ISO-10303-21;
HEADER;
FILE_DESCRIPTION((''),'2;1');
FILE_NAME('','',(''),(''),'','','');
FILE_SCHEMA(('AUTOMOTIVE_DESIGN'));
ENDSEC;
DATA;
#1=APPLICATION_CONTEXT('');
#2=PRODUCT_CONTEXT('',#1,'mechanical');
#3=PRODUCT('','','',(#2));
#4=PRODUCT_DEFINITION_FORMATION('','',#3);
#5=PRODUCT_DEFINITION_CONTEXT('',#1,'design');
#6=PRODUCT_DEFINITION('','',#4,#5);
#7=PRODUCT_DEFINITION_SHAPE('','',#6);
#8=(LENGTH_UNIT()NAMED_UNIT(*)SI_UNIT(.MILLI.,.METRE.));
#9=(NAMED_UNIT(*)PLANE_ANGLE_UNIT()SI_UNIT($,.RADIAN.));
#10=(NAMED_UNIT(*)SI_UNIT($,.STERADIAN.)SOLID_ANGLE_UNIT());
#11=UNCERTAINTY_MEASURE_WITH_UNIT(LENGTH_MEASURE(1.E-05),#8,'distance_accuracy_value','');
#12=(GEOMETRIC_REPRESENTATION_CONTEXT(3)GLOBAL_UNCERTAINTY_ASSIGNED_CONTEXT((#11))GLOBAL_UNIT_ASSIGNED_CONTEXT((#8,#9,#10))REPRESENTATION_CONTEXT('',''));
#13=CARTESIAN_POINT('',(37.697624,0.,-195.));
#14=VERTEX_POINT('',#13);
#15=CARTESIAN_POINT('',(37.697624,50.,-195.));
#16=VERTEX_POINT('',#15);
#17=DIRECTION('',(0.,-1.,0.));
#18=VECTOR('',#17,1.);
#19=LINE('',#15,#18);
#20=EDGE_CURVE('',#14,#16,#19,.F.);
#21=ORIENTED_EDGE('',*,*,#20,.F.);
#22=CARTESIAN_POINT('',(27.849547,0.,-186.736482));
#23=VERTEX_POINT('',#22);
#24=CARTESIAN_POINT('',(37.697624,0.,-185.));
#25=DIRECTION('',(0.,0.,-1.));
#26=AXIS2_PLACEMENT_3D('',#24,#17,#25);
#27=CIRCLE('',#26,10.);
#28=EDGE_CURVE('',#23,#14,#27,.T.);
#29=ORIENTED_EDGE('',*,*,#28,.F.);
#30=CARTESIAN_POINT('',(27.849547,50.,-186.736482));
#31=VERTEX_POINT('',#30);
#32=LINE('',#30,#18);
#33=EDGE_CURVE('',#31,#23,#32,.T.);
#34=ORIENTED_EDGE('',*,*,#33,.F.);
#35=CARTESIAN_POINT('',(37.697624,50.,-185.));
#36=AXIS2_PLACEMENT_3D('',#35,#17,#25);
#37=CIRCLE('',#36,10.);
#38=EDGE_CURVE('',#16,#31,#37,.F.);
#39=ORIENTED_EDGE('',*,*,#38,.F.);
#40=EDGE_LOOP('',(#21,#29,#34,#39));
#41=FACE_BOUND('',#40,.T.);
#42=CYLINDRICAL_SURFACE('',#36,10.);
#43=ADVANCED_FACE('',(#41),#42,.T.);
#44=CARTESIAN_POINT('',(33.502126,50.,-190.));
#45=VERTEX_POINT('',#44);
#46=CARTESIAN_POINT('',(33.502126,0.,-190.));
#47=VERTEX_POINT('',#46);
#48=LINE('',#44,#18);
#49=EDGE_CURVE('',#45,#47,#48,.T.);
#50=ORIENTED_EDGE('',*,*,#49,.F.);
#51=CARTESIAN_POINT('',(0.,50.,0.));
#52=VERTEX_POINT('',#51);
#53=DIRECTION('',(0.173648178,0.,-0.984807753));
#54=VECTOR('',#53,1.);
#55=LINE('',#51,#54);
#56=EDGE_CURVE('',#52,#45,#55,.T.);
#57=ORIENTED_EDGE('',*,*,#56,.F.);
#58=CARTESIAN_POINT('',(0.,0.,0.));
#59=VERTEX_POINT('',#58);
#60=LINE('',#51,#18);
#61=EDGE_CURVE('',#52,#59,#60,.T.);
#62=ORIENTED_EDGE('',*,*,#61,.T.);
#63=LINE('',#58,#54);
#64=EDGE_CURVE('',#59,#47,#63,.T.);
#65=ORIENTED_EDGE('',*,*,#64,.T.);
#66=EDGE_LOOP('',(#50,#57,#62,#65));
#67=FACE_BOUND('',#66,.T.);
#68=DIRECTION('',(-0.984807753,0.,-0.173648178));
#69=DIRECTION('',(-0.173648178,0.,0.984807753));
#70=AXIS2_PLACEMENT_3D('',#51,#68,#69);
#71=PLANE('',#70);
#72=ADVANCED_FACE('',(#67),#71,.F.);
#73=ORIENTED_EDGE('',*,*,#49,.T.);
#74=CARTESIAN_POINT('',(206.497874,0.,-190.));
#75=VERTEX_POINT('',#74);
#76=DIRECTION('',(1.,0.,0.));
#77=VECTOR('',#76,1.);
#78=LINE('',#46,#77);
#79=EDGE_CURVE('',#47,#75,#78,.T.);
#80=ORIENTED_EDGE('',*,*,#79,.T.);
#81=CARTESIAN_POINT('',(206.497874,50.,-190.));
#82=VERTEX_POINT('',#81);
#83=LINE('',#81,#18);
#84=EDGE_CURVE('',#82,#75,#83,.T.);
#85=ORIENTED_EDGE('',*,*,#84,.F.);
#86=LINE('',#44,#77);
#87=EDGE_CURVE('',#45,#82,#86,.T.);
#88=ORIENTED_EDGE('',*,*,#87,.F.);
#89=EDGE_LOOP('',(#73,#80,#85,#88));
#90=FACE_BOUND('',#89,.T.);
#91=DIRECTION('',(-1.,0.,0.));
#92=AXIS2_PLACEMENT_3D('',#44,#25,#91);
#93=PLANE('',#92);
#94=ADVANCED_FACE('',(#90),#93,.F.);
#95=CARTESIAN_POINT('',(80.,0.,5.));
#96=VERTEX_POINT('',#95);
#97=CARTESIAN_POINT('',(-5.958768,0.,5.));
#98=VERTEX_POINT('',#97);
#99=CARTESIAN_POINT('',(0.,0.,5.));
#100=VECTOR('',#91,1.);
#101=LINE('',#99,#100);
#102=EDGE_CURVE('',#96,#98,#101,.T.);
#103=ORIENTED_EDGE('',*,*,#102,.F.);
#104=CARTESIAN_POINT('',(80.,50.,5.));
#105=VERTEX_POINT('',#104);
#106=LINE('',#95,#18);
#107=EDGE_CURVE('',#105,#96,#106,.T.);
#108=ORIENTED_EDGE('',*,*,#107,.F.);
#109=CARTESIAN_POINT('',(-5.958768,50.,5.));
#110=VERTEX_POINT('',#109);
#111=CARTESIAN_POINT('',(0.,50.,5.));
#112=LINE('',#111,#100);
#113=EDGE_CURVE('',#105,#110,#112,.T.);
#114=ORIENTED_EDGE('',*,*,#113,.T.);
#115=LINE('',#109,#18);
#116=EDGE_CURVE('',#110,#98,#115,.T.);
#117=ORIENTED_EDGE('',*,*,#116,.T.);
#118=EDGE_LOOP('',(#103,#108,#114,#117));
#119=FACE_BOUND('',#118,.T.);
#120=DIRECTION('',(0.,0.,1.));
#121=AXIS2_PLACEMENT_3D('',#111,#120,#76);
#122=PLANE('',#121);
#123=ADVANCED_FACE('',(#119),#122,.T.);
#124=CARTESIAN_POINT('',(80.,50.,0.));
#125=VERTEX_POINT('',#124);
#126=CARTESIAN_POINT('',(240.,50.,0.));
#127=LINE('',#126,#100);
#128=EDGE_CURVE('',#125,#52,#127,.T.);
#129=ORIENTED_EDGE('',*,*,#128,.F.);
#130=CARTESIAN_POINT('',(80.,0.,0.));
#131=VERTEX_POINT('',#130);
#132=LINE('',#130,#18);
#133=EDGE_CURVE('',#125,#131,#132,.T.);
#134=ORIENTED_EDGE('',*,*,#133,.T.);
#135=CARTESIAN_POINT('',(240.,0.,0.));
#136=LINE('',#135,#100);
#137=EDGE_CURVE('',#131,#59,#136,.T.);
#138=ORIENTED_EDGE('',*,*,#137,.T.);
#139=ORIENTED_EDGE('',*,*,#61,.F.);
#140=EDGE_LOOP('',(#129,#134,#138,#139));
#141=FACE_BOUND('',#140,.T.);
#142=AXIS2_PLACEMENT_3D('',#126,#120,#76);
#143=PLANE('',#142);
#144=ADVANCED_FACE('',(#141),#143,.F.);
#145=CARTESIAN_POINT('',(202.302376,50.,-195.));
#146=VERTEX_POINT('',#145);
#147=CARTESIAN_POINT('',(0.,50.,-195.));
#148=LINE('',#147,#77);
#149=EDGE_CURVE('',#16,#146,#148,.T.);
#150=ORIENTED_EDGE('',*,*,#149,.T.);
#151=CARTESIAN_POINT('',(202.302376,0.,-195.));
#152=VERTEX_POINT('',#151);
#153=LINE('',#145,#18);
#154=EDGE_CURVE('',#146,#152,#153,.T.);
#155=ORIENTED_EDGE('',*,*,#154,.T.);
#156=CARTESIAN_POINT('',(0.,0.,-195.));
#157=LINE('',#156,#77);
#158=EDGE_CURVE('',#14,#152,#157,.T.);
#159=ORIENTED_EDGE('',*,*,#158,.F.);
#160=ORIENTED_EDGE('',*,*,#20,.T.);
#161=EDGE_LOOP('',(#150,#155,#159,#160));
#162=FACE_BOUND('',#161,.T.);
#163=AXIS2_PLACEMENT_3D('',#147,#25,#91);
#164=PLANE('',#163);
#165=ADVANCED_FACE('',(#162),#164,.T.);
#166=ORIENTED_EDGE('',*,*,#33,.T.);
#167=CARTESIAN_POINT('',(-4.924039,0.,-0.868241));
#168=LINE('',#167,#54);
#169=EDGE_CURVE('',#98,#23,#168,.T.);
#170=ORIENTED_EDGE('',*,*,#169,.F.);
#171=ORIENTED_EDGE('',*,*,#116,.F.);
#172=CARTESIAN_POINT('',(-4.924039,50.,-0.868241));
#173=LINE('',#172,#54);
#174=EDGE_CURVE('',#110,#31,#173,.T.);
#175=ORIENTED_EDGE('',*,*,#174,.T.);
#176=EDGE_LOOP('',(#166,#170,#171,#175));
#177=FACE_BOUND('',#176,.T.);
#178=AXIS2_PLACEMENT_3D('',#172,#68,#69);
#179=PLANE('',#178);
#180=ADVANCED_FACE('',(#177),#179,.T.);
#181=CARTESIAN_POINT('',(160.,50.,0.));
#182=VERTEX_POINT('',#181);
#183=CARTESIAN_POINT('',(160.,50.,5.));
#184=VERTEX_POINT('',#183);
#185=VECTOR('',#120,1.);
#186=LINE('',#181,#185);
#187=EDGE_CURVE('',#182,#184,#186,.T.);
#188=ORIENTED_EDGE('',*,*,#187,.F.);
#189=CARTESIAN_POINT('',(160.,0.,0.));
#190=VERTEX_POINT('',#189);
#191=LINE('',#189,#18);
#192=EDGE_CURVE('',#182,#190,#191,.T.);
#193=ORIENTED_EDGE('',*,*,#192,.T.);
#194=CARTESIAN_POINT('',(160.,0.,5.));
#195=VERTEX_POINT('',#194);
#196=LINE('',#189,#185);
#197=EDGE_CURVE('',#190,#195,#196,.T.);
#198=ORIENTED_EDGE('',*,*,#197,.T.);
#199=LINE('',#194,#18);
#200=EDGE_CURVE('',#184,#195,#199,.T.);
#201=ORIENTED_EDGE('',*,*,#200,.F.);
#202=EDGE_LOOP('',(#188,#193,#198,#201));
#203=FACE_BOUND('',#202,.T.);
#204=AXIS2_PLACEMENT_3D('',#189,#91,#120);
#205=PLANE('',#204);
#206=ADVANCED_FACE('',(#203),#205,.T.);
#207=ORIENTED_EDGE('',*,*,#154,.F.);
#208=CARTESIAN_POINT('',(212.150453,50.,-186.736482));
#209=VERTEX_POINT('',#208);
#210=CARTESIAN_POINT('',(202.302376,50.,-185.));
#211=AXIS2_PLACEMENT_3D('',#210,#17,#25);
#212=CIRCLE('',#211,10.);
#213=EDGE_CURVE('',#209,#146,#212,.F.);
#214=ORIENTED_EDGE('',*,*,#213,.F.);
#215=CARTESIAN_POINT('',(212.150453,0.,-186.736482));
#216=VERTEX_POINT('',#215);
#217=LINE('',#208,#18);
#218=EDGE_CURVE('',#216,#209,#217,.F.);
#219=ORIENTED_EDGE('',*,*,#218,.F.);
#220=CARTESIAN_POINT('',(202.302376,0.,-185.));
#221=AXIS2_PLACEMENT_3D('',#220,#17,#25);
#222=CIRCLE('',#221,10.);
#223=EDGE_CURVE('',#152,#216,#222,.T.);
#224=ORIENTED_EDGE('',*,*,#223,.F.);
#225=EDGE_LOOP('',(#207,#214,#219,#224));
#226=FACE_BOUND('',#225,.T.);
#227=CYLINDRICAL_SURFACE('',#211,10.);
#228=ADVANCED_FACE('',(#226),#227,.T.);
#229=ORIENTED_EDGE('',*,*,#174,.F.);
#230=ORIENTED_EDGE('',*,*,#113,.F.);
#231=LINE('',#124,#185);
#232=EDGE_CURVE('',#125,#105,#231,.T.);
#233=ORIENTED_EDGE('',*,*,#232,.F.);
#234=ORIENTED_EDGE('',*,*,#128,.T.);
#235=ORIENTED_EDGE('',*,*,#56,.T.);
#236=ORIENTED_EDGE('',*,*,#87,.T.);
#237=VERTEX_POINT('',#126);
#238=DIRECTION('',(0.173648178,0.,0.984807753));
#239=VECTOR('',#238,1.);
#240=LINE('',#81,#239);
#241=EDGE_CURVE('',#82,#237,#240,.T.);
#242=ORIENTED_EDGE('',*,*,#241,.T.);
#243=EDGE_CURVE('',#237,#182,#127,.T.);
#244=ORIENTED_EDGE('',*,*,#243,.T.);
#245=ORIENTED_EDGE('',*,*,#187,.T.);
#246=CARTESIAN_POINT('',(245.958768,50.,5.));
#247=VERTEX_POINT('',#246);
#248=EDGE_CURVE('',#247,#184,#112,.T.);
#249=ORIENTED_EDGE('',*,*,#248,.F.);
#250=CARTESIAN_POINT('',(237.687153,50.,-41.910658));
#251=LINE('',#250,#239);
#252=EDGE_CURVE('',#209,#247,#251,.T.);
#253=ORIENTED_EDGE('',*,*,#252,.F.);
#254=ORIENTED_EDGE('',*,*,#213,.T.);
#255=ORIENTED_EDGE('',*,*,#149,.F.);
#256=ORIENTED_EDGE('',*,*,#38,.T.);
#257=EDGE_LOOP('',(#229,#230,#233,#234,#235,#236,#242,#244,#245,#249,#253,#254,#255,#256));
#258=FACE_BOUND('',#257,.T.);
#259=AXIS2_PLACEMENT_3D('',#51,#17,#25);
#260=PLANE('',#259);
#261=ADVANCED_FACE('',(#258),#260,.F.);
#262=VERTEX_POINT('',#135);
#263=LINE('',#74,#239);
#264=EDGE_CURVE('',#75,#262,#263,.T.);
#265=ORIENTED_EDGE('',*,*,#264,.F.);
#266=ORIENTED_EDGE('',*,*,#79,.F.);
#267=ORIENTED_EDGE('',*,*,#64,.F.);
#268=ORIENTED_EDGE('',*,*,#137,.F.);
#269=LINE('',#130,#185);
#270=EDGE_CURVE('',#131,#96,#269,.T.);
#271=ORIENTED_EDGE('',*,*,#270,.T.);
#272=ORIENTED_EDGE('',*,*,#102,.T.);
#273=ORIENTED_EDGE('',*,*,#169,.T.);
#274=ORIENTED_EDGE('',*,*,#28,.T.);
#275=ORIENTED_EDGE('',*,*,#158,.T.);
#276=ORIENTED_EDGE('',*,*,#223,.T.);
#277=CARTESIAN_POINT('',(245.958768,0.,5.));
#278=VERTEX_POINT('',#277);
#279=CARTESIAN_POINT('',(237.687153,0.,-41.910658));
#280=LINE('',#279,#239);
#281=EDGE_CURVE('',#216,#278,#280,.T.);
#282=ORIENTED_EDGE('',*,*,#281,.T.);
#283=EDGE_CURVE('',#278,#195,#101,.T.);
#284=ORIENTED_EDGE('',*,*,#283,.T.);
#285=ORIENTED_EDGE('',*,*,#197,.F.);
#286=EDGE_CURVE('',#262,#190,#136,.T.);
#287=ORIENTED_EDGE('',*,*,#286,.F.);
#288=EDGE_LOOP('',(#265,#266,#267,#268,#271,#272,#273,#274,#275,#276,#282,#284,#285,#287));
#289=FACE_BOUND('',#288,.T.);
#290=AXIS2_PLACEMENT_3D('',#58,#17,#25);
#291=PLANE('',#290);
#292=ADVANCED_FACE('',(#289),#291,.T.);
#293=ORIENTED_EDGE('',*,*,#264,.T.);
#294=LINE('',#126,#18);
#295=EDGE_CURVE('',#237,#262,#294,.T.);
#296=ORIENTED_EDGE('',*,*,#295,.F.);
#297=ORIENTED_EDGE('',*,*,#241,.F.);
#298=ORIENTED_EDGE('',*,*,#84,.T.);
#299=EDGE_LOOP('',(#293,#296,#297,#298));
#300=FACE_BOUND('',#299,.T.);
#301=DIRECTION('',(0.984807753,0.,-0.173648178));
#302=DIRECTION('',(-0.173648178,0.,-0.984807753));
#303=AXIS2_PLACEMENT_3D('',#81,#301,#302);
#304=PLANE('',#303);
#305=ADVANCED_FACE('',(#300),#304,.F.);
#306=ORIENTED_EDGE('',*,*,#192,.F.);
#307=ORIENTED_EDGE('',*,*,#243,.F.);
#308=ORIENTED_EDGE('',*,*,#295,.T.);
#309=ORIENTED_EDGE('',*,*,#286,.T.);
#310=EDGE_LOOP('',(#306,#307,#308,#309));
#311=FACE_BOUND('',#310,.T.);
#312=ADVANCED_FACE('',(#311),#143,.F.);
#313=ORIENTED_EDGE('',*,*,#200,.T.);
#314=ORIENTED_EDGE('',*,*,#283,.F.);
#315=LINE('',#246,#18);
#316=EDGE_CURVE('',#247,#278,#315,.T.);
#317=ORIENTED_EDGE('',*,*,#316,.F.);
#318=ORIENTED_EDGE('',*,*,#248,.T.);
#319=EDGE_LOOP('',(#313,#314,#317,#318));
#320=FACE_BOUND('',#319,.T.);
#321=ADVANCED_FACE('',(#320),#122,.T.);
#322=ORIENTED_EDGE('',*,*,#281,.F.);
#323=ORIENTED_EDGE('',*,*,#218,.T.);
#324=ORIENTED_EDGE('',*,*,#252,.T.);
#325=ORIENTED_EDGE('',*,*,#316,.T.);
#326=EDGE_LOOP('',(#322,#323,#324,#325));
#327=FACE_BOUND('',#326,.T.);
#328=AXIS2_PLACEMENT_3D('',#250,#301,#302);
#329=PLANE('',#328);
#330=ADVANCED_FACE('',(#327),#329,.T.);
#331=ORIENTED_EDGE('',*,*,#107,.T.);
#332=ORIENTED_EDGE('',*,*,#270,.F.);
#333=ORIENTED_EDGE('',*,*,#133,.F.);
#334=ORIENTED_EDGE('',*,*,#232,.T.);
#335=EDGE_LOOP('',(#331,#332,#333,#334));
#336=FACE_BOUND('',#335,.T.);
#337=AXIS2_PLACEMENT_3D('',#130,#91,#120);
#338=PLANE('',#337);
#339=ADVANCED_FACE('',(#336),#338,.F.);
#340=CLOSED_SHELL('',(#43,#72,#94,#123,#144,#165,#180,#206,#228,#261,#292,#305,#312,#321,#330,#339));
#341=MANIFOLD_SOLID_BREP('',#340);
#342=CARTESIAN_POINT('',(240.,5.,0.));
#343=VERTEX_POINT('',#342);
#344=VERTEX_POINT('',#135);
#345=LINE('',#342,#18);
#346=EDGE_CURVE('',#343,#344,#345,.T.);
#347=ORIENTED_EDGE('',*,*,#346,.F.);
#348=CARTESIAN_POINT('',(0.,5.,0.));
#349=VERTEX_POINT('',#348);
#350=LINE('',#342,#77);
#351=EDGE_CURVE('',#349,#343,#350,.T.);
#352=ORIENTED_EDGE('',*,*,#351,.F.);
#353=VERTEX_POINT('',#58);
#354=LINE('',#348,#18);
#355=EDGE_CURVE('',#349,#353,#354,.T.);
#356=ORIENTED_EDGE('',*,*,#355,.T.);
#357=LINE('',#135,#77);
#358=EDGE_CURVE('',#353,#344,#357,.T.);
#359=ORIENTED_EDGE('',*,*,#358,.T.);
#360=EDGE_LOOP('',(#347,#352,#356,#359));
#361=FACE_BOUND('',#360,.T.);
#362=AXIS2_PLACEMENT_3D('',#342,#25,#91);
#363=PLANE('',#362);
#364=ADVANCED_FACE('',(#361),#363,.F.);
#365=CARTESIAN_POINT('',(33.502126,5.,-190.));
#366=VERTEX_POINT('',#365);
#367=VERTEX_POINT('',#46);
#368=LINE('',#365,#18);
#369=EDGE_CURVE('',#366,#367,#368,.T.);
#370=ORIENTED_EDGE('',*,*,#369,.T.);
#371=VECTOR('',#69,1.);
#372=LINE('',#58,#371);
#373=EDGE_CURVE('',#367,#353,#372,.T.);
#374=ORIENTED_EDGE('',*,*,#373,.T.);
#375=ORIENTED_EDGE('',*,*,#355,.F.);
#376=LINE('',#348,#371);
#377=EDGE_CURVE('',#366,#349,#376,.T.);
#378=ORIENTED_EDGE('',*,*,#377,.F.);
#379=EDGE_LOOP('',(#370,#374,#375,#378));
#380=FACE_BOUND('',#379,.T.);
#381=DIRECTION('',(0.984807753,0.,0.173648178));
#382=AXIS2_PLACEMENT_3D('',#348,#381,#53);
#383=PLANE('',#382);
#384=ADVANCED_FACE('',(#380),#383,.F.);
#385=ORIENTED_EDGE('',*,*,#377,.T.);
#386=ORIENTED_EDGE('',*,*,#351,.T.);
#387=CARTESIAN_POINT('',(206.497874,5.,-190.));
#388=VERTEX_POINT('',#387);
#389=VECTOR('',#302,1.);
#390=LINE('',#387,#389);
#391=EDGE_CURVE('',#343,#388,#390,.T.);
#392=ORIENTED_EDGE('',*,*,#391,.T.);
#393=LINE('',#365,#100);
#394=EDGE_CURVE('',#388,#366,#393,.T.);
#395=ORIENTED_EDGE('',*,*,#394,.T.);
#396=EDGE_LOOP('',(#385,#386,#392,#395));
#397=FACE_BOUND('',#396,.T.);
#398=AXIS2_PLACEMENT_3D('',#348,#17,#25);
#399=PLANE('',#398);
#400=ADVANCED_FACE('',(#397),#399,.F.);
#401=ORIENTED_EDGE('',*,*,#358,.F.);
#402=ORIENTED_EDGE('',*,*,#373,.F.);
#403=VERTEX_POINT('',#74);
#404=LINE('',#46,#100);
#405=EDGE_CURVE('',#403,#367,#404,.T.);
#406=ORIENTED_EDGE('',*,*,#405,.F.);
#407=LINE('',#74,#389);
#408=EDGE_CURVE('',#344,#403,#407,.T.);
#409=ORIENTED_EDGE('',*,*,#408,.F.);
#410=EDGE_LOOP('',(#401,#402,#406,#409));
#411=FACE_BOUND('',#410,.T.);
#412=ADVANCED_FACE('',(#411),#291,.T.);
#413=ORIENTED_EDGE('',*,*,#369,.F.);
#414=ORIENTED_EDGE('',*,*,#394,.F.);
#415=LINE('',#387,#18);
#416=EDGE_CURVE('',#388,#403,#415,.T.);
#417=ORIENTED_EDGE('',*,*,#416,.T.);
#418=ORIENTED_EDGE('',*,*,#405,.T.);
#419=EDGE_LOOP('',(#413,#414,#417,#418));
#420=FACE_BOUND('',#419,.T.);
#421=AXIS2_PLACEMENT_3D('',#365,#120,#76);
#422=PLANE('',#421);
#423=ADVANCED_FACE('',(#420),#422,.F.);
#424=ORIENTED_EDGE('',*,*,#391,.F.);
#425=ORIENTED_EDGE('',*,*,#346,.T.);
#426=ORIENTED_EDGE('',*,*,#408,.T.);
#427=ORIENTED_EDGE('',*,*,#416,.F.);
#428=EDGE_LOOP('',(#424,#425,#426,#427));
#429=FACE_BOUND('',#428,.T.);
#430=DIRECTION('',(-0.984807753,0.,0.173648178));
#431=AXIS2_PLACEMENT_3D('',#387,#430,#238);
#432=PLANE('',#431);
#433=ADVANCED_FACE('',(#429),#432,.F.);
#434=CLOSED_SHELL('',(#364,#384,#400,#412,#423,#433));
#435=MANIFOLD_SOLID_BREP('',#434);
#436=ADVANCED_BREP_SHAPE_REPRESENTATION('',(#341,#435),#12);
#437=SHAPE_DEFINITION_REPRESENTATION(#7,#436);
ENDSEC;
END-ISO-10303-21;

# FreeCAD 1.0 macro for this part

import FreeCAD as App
import Part
import Sketcher
from FreeCAD import Vector
Q = App.Units.Quantity


def edges_at(feature, points):
    """Names of the edges that pass closest to the given points."""
    edges = feature.Shape.Edges
    near = lambda p: min(range(len(edges)), key=lambda i: edges[i].distToShape(Part.Vertex(*p))[0])
    return sorted({f"Edge{near(p) + 1}" for p in points})


def add_polygon(sketch, points):
    """Adds a closed chain of lines whose ends are joined by coincident constraints."""
    first, n = sketch.GeometryCount, len(points)
    for a, b in zip(points, points[1:] + points[:1]):
        sketch.addGeometry(Part.LineSegment(App.Vector(*a, 0), App.Vector(*b, 0)), False)
    for i in range(n):
        sketch.addConstraint(Sketcher.Constraint("Coincident", first + i, 2, first + (i + 1) % n, 1))

doc = App.newDocument("Part")
params = doc.addObject("Spreadsheet::Sheet", "Params")
for row, (alias, value) in enumerate([
    ("sketch1_width", "240 mm"),
    ("pad1_length", "50 mm"),
    ("fillet_radius", "10 mm"),
    ("sketch2_width", "80 mm"),
    ("sketch2_height", "50 mm"),
    ("pocket1_length", "5 mm"),
    ("sketch3_width", "240 mm"),
    ("pad2_length", "5 mm"),
], start=1):
    params.set(f"A{row}", alias)
    params.set(f"B{row}", "=" + value)
    params.setAlias(f"B{row}", alias)

body = doc.addObject("PartDesign::Body", "Body")

sketch1 = body.newObject("Sketcher::SketchObject", "Sketch")
sketch1.AttachmentSupport = (doc.getObject("XZ_Plane"), [""])
sketch1.MapMode = "FlatFace"
add_polygon(sketch1, [(-6, 5), (246, 5), (211, -195), (29, -195)])
add_polygon(sketch1, [(240, 0), (0, 0), (34, -190), (206, -190)])
sketch1.addConstraint(Sketcher.Constraint("Horizontal", 0))
sketch1.addConstraint(Sketcher.Constraint("Horizontal", 2))
sketch1.addConstraint(Sketcher.Constraint("Horizontal", 4))
sketch1.addConstraint(Sketcher.Constraint("Horizontal", 6))
sketch1.addConstraint(Sketcher.Constraint("Coincident", 4, 2, -1, 1))
sketch1.addConstraint(Sketcher.Constraint("Parallel", 3, 5))
sketch1.addConstraint(Sketcher.Constraint("Parallel", 1, 7))
sketch1.addConstraint(Sketcher.Constraint("Equal", 1, 3))
sketch1.addConstraint(Sketcher.Constraint("DistanceX", 4, 2, 4, 1, Q("240 mm")))
sketch1.addConstraint(Sketcher.Constraint("Angle", 1, Q("-100 deg")))
sketch1.addConstraint(Sketcher.Constraint("DistanceY", -1, 1, 0, 2, Q("5 mm")))
sketch1.addConstraint(Sketcher.Constraint("DistanceY", 1, 2, -1, 1, Q("195 mm")))
sketch1.addConstraint(Sketcher.Constraint("DistanceY", 5, 2, -1, 1, Q("190 mm")))
sketch1.addConstraint(Sketcher.Constraint("DistanceX", 2, 2, 5, 2, Q("4.195498 mm")))
sketch1.addConstraint(Sketcher.Constraint("DistanceX", 6, 2, 1, 2, Q("4.195498 mm")))
sketch1.setExpression("Constraints[16]", "Params.sketch1_width")
pad1 = body.newObject("PartDesign::Pad", "Pad")
pad1.Profile = sketch1
pad1.setExpression("Length", "Params.pad1_length")
pad1.Reversed = True
doc.recompute()

fillet = body.newObject("PartDesign::Fillet", "Fillet")
fillet.Base = (pad1, edges_at(pad1, [(210.693, 25, -195), (29.307, 25, -195)]))
fillet.setExpression("Radius", "Params.fillet_radius")

sketch2 = body.newObject("Sketcher::SketchObject", "Sketch001")
sketch2.AttachmentSupport = (doc.getObject("XY_Plane"), [""])
sketch2.MapMode = "FlatFace"
sketch2.AttachmentOffset = App.Placement(Vector(0, 0, 5), App.Rotation())
add_polygon(sketch2, [(80, 50), (80, 0), (160, 0), (160, 50)])
sketch2.addConstraint(Sketcher.Constraint("Vertical", 0))
sketch2.addConstraint(Sketcher.Constraint("Horizontal", 1))
sketch2.addConstraint(Sketcher.Constraint("Vertical", 2))
sketch2.addConstraint(Sketcher.Constraint("Horizontal", 3))
sketch2.addConstraint(Sketcher.Constraint("PointOnObject", 0, 2, -1))
sketch2.addConstraint(Sketcher.Constraint("DistanceX", 1, 1, 1, 2, Q("80 mm")))
sketch2.addConstraint(Sketcher.Constraint("DistanceY", 0, 2, 0, 1, Q("50 mm")))
sketch2.addConstraint(Sketcher.Constraint("DistanceX", -1, 1, 0, 2, Q("80 mm")))
sketch2.setExpression("Constraints[9]", "Params.sketch2_width")
sketch2.setExpression("Constraints[10]", "Params.sketch2_height")
pocket1 = body.newObject("PartDesign::Pocket", "Pocket")
pocket1.Profile = sketch2
pocket1.setExpression("Length", "Params.pocket1_length")
body2 = doc.addObject("PartDesign::Body", "Body001")

sketch3 = body2.newObject("Sketcher::SketchObject", "Sketch002")
sketch3.AttachmentSupport = (doc.getObject("XZ_Plane001"), [""])
sketch3.MapMode = "FlatFace"
add_polygon(sketch3, [(34, -190), (0, 0), (240, 0), (206, -190)])
sketch3.addConstraint(Sketcher.Constraint("Horizontal", 1))
sketch3.addConstraint(Sketcher.Constraint("Horizontal", 3))
sketch3.addConstraint(Sketcher.Constraint("Coincident", 0, 2, -1, 1))
sketch3.addConstraint(Sketcher.Constraint("Equal", 0, 2))
sketch3.addConstraint(Sketcher.Constraint("DistanceX", 1, 1, 1, 2, Q("240 mm")))
sketch3.addConstraint(Sketcher.Constraint("Angle", 0, Q("100 deg")))
sketch3.addConstraint(Sketcher.Constraint("DistanceY", 2, 2, -1, 1, Q("190 mm")))
sketch3.setExpression("Constraints[8]", "Params.sketch3_width")
pad2 = body2.newObject("PartDesign::Pad", "Pad001")
pad2.Profile = sketch3
pad2.setExpression("Length", "Params.pad2_length")
pad2.Reversed = True

doc.recompute()
